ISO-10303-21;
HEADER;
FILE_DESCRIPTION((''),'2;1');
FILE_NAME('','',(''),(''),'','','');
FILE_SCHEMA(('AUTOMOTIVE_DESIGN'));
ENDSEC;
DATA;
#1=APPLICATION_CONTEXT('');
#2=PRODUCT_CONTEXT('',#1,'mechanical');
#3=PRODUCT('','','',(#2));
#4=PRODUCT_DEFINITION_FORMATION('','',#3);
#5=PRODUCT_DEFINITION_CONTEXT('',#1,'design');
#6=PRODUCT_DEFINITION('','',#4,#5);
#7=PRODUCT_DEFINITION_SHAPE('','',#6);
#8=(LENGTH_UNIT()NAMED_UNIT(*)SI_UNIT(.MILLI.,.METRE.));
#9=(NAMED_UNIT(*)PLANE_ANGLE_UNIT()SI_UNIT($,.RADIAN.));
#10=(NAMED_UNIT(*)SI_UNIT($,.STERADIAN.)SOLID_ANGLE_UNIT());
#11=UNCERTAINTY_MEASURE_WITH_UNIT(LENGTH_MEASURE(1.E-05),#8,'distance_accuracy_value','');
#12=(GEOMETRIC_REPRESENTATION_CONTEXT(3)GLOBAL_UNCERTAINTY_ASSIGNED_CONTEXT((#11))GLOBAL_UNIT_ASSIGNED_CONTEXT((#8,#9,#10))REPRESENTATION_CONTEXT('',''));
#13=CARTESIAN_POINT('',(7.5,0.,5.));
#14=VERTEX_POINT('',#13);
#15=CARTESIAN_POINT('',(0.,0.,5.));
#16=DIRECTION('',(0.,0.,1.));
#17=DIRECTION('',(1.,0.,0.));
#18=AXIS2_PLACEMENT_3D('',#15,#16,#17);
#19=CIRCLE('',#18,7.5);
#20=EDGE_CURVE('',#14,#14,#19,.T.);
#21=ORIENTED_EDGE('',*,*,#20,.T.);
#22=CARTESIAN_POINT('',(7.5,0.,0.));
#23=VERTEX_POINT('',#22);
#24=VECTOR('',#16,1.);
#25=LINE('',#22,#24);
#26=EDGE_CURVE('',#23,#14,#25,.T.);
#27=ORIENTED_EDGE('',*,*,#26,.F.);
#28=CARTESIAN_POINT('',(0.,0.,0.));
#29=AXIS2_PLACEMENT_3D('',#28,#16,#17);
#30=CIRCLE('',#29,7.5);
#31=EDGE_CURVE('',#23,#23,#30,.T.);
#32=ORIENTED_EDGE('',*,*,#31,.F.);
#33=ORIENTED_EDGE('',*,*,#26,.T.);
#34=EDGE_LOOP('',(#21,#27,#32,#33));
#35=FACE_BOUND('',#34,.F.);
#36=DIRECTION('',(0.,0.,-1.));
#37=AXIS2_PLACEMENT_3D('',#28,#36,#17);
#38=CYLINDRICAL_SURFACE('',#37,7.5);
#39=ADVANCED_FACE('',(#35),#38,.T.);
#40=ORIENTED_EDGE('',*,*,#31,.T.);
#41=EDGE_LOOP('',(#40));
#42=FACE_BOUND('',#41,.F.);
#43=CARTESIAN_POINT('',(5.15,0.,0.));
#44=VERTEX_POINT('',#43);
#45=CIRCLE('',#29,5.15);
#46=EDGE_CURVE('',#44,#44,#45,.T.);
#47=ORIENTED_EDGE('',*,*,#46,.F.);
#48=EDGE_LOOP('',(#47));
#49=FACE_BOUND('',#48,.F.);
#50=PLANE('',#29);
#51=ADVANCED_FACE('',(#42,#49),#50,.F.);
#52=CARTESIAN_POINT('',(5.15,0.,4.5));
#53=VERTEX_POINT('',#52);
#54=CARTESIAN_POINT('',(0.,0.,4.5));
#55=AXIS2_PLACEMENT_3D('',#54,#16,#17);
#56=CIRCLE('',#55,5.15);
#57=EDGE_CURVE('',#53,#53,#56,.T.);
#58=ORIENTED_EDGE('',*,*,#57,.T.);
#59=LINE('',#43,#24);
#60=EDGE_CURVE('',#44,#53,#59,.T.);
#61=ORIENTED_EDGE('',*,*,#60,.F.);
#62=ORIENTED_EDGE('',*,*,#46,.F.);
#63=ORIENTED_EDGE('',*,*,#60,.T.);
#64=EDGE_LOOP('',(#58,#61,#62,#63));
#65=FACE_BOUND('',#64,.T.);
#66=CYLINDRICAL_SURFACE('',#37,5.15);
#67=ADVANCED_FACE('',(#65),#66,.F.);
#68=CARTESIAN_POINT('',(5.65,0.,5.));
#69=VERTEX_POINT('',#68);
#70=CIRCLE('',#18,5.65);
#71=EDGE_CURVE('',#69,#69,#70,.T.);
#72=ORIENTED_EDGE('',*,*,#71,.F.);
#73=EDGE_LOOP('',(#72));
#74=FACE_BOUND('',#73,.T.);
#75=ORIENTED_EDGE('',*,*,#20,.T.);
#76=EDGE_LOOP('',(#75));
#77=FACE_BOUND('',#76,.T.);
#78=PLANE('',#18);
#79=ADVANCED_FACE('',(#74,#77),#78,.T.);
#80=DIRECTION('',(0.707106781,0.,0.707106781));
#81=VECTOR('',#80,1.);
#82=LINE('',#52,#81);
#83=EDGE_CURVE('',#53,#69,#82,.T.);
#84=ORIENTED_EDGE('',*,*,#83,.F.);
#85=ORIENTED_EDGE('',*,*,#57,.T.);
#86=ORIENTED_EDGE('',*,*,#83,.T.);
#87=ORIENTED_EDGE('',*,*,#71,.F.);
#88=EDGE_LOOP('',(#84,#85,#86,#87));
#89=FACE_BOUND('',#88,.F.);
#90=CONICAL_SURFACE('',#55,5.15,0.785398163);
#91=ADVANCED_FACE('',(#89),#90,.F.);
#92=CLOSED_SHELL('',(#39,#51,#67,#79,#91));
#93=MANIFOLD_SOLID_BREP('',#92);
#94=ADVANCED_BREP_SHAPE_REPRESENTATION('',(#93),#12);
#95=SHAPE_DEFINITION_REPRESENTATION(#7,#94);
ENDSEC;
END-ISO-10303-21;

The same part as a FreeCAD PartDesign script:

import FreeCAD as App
import Part
import Sketcher


def edges_at(feature, points):
    """Names of the edges that pass closest to the given points."""
    edges = feature.Shape.Edges
    near = lambda p: min(range(len(edges)), key=lambda i: edges[i].distToShape(Part.Vertex(*p))[0])
    return sorted({f"Edge{near(p) + 1}" for p in points})

doc = App.newDocument("Part")
body = doc.addObject("PartDesign::Body", "Body")

sketch1 = body.newObject("Sketcher::SketchObject", "Sketch")
sketch1.AttachmentSupport = (doc.getObject("XY_Plane"), [""])
sketch1.MapMode = "FlatFace"
sketch1.addGeometry([
    Part.Circle(App.Vector(0, 0, 0), App.Vector(0, 0, 1), 7.5),
    Part.Circle(App.Vector(0, 0, 0), App.Vector(0, 0, 1), 5.15),
], False)
sketch1.addConstraint([
    Sketcher.Constraint("Coincident", 0, 3, -1, 1),
    Sketcher.Constraint("Coincident", 1, 3, -1, 1),
    Sketcher.Constraint("Diameter", 0, 15.0),
    Sketcher.Constraint("Diameter", 1, 10.3),
])
pad1 = body.newObject("PartDesign::Pad", "Pad")
pad1.Profile = sketch1
pad1.Length = 5
doc.recompute()

chamfer = body.newObject("PartDesign::Chamfer", "Chamfer")
chamfer.Base = (pad1, edges_at(pad1, [(-5.15, 0, 5)]))
chamfer.Size = 0.5

doc.recompute()
